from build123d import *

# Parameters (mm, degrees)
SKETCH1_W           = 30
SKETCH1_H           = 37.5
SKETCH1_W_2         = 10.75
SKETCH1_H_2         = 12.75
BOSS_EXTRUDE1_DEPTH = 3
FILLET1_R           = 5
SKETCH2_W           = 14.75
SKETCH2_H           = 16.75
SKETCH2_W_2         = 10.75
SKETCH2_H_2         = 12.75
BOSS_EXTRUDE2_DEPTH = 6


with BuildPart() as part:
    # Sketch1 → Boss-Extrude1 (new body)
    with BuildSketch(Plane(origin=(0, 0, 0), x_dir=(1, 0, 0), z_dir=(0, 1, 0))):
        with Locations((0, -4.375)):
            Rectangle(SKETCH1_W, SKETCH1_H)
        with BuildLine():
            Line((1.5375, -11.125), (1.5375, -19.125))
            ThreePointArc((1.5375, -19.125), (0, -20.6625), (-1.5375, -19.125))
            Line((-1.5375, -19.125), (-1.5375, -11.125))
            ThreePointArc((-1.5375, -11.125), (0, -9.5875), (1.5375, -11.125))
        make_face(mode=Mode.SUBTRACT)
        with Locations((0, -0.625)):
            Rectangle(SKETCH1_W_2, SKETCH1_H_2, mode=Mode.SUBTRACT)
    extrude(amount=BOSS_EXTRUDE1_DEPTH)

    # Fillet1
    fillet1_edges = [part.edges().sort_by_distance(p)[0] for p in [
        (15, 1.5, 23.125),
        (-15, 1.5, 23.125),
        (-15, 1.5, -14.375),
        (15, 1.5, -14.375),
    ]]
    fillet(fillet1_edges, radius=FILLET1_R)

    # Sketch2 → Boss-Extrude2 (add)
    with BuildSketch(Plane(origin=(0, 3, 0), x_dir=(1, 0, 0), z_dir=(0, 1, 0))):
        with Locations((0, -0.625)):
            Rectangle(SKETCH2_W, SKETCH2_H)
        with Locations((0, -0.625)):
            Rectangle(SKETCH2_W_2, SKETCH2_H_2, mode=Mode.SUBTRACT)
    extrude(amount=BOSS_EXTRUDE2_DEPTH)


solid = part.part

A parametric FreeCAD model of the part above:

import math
import FreeCAD as App
import Part
import Sketcher

V = App.Vector


def edges_at(feature, points):
    """Names of the edges that pass closest to the given points."""
    edges = feature.Shape.Edges
    near = lambda p: min(range(len(edges)), key=lambda i: edges[i].distToShape(Part.Vertex(*p))[0])
    return sorted({f"Edge{near(p) + 1}" for p in points})


def add_polygon(sketch, points):
    """Adds a closed chain of lines whose ends are joined by coincident constraints."""
    first, n = sketch.GeometryCount, len(points)
    for a, b in zip(points, points[1:] + points[:1]):
        sketch.addGeometry(Part.LineSegment(App.Vector(*a, 0), App.Vector(*b, 0)), False)
    for i in range(n):
        sketch.addConstraint(Sketcher.Constraint("Coincident", first + i, 2, first + (i + 1) % n, 1))

doc = App.newDocument("Part")
body = doc.addObject("PartDesign::Body", "Body")

# Sketch on XZ plane
sketch1 = doc.addObject("Sketcher::SketchObject", "Sketch")
body.addObject(sketch1)
sketch1.AttachmentSupport = (doc.XZ_Plane, [""])
sketch1.MapMode = "FlatFace"
add_polygon(sketch1, [(-15, -14.4), (-15, 23.1), (15, 23.1), (15, -14.4)])  # lines 0-3
sketch1.addGeometry(Part.ArcOfCircle(Part.Circle(V(0, 11.1, 0), V(0, 0, 1), 1.5), math.radians(180), math.radians(360)), False)  # 4
sketch1.addGeometry(Part.LineSegment(V(1.5, 11.1, 0), V(1.5, 19.1, 0)), False)  # 5
sketch1.addGeometry(Part.ArcOfCircle(Part.Circle(V(0, 19.1, 0), V(0, 0, 1), 1.5), math.radians(0), math.radians(180)), False)  # 6
sketch1.addGeometry(Part.LineSegment(V(-1.5, 19.1, 0), V(-1.5, 11.1, 0)), False)  # 7
add_polygon(sketch1, [(5.4, 7), (-5.4, 7), (-5.4, -5.8), (5.4, -5.8)])  # lines 8-11
sketch1.addConstraint([
    Sketcher.Constraint("Tangent", 4, 2, 5, 1),
    Sketcher.Constraint("Tangent", 5, 2, 6, 1),
    Sketcher.Constraint("Tangent", 6, 2, 7, 1),
    Sketcher.Constraint("Tangent", 7, 2, 4, 1),
    Sketcher.Constraint("Vertical", 0),
    Sketcher.Constraint("Horizontal", 1),
    Sketcher.Constraint("Vertical", 2),
    Sketcher.Constraint("Horizontal", 3),
    Sketcher.Constraint("Vertical", 5),
    Sketcher.Constraint("Vertical", 7),
    Sketcher.Constraint("Horizontal", 8),
    Sketcher.Constraint("Vertical", 9),
    Sketcher.Constraint("Horizontal", 10),
    Sketcher.Constraint("Vertical", 11),
    Sketcher.Constraint("PointOnObject", 4, 3, -2),
    Sketcher.Constraint("DistanceX", 1, 1, 1, 2, 30.0),
    Sketcher.Constraint("DistanceY", 5, 1, 5, 2, 8.0),
    Sketcher.Constraint("DistanceY", 0, 1, 0, 2, 37.5),
    Sketcher.Constraint("DistanceX", 0, 2, -1, 1, 15.0),
    Sketcher.Constraint("DistanceY", -1, 1, 8, 2, 7.0),
    Sketcher.Constraint("DistanceY", 6, 3, 0, 2, 4.0),
    Sketcher.Constraint("DistanceX", 8, 2, 8, 1, 10.75),
    Sketcher.Constraint("DistanceY", 9, 2, 9, 1, 12.75),
    Sketcher.Constraint("Radius", 4, 1.5375),
    Sketcher.Constraint("DistanceY", -1, 1, 4, 3, 11.125),
    Sketcher.Constraint("DistanceX", 8, 2, -1, 1, 5.375),
])
pad1 = doc.addObject("PartDesign::Pad", "Pad")
body.addObject(pad1)
pad1.Profile = sketch1
pad1.Length = 3
pad1.Reversed = True
doc.recompute()

fillet = doc.addObject("PartDesign::Fillet", "Fillet")
body.addObject(fillet)
fillet.Base = (pad1, edges_at(pad1, [
    (15, 1.5, 23.125),
    (-15, 1.5, 23.125),
    (-15, 1.5, -14.375),
    (15, 1.5, -14.375),
]))
fillet.Radius = 5

# Sketch on XZ plane
sketch2 = doc.addObject("Sketcher::SketchObject", "Sketch001")
body.addObject(sketch2)
sketch2.AttachmentSupport = (doc.XZ_Plane, [""])
sketch2.MapMode = "FlatFace"
sketch2.AttachmentOffset = App.Placement(V(0, 0, -3), App.Rotation())
add_polygon(sketch2, [(-7, -8), (-7, 9), (7, 9), (7, -8)])  # lines 0-3
add_polygon(sketch2, [(5, 7), (-5, 7), (-5, -6), (5, -6)])  # lines 4-7
sketch2.addConstraint([
    Sketcher.Constraint("Vertical", 0),
    Sketcher.Constraint("Horizontal", 1),
    Sketcher.Constraint("Vertical", 2),
    Sketcher.Constraint("Horizontal", 3),
    Sketcher.Constraint("Horizontal", 4),
    Sketcher.Constraint("Vertical", 5),
    Sketcher.Constraint("Horizontal", 6),
    Sketcher.Constraint("Vertical", 7),
    Sketcher.Constraint("DistanceY", -1, 1, 0, 2, 9.0),
    Sketcher.Constraint("DistanceY", -1, 1, 4, 2, 7.0),
    Sketcher.Constraint("DistanceX", 0, 2, 4, 2, 2.0),
    Sketcher.Constraint("DistanceY", 3, 2, 5, 2, 2.0),
    Sketcher.Constraint("DistanceX", 6, 2, 2, 2, 2.0),
    Sketcher.Constraint("DistanceX", 1, 1, 1, 2, 14.75),
    Sketcher.Constraint("DistanceY", 0, 1, 0, 2, 16.75),
    Sketcher.Constraint("DistanceX", 0, 2, -1, 1, 7.375),
])
pad2 = doc.addObject("PartDesign::Pad", "Pad001")
body.addObject(pad2)
pad2.Profile = sketch2
pad2.Length = 6
pad2.Reversed = True

doc.recompute()
